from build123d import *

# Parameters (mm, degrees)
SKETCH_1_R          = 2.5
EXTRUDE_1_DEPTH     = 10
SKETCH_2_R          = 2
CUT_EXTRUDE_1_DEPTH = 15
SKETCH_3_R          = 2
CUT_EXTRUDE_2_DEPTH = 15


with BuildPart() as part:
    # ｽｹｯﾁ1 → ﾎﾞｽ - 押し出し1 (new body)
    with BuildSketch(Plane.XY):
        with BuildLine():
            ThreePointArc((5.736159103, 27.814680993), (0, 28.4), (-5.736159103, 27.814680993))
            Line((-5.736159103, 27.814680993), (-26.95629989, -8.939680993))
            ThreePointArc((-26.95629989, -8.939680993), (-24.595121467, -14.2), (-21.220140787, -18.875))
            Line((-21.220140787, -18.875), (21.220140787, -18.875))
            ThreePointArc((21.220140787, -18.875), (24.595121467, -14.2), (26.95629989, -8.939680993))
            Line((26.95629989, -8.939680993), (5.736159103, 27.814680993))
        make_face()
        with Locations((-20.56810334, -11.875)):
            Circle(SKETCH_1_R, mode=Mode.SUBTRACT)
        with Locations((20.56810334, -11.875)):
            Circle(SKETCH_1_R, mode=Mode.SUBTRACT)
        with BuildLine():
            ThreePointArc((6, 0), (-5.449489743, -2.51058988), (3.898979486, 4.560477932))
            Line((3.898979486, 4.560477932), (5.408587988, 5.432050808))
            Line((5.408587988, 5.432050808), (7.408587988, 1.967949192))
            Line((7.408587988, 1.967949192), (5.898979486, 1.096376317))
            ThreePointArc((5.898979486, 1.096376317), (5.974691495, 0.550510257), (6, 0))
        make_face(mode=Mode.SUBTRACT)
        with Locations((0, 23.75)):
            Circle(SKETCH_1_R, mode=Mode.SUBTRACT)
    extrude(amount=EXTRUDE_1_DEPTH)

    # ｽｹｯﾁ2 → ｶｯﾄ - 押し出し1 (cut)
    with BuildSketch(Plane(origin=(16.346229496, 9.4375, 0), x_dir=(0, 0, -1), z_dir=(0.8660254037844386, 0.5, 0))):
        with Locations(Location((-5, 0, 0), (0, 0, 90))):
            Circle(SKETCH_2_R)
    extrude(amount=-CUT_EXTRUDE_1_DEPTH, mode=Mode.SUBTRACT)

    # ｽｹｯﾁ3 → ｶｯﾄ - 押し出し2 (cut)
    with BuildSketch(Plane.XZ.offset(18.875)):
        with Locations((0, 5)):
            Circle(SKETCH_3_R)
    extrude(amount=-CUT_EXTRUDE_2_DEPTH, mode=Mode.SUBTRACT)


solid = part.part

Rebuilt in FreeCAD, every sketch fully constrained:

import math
import FreeCAD as App
import Part
import Sketcher

V = App.Vector
Q = App.Units.Quantity

doc = App.newDocument("Part")
body = doc.addObject("PartDesign::Body", "Body")

# Sketch on XY plane
sketch1 = doc.addObject("Sketcher::SketchObject", "Sketch")
body.addObject(sketch1)
sketch1.AttachmentSupport = (doc.XY_Plane, [""])
sketch1.MapMode = "FlatFace"
sketch1.addGeometry(Part.ArcOfCircle(Part.Circle(V(0, 0, 0), V(0, 0, 1), 28.4), math.radians(78), math.radians(102)), False)
sketch1.addGeometry(Part.LineSegment(V(-5.7, 27.8, 0), V(-27, -8.9, 0)), False)
sketch1.addGeometry(Part.ArcOfCircle(Part.Circle(V(0, 0, 0), V(0, 0, 1), 28.4), math.radians(-162), math.radians(-138)), False)
sketch1.addGeometry(Part.LineSegment(V(-21.2, -18.9, 0), V(21.2, -18.9, 0)), False)
sketch1.addGeometry(Part.ArcOfCircle(Part.Circle(V(0, 0, 0), V(0, 0, 1), 28.4), math.radians(-42), math.radians(-18)), False)
sketch1.addGeometry(Part.LineSegment(V(27, -8.9, 0), V(5.7, 27.8, 0)), False)
sketch1.addGeometry(Part.Circle(V(-20.6, -11.9, 0), V(0, 0, 1), 2.5), False)
sketch1.addGeometry(Part.Circle(V(20.6, -11.9, 0), V(0, 0, 1), 2.5), False)
sketch1.addGeometry(Part.ArcOfCircle(Part.Circle(V(0, 0, 0), V(0, 0, 1), 6), math.radians(0), math.radians(10.53)), False)
sketch1.addGeometry(Part.ArcOfCircle(Part.Circle(V(0, 0, 0), V(0, 0, 1), 6), math.radians(49), math.radians(360)), False)
sketch1.addGeometry(Part.LineSegment(V(3.9, 4.6, 0), V(5.4, 5.4, 0)), False)
sketch1.addGeometry(Part.LineSegment(V(5.4, 5.4, 0), V(7.4, 2, 0)), False)
sketch1.addGeometry(Part.LineSegment(V(7.4, 2, 0), V(5.9, 1.1, 0)), False)
sketch1.addGeometry(Part.Circle(V(0, 23.8, 0), V(0, 0, 1), 2.5), False)
sketch1.addConstraint(Sketcher.Constraint("Coincident", 0, 2, 1, 1))
sketch1.addConstraint(Sketcher.Constraint("Coincident", 1, 2, 2, 1))
sketch1.addConstraint(Sketcher.Constraint("Coincident", 2, 2, 3, 1))
sketch1.addConstraint(Sketcher.Constraint("Coincident", 3, 2, 4, 1))
sketch1.addConstraint(Sketcher.Constraint("Coincident", 4, 2, 5, 1))
sketch1.addConstraint(Sketcher.Constraint("Coincident", 5, 2, 0, 1))
sketch1.addConstraint(Sketcher.Constraint("Tangent", 8, 1, 9, 2))
sketch1.addConstraint(Sketcher.Constraint("Coincident", 9, 1, 10, 1))
sketch1.addConstraint(Sketcher.Constraint("Coincident", 10, 2, 11, 1))
sketch1.addConstraint(Sketcher.Constraint("Coincident", 11, 2, 12, 1))
sketch1.addConstraint(Sketcher.Constraint("Coincident", 12, 2, 8, 2))
sketch1.addConstraint(Sketcher.Constraint("Horizontal", 3))
sketch1.addConstraint(Sketcher.Constraint("Coincident", 0, 3, -1, 1))
sketch1.addConstraint(Sketcher.Constraint("Coincident", 2, 3, -1, 1))
sketch1.addConstraint(Sketcher.Constraint("Coincident", 4, 3, -1, 1))
sketch1.addConstraint(Sketcher.Constraint("Coincident", 8, 3, -1, 1))
sketch1.addConstraint(Sketcher.Constraint("Equal", 0, 2))
sketch1.addConstraint(Sketcher.Constraint("Equal", 2, 4))
sketch1.addConstraint(Sketcher.Constraint("Equal", 6, 7))
sketch1.addConstraint(Sketcher.Constraint("Equal", 8, 9))
sketch1.addConstraint(Sketcher.Constraint("Equal", 7, 13))
sketch1.addConstraint(Sketcher.Constraint("Symmetric", 6, 3, 7, 3, -2))
sketch1.addConstraint(Sketcher.Constraint("PointOnObject", 13, 3, -2))
sketch1.addConstraint(Sketcher.Constraint("PointOnObject", 8, 1, -1))
sketch1.addConstraint(Sketcher.Constraint("Perpendicular", 5, 10))
sketch1.addConstraint(Sketcher.Constraint("Perpendicular", 10, 11))
sketch1.addConstraint(Sketcher.Constraint("Perpendicular", 11, 12))
sketch1.addConstraint(Sketcher.Constraint("Horizontal", 1, 2, 4, 2))
sketch1.addConstraint(Sketcher.Constraint("Horizontal", 0, 2, 5, 2))
sketch1.addConstraint(Sketcher.Constraint("Equal", 10, 12))
sketch1.addConstraint(Sketcher.Constraint("Diameter", 6, Q("5 mm")))
sketch1.addConstraint(Sketcher.Constraint("Radius", 8, Q("6 mm")))
sketch1.addConstraint(Sketcher.Constraint("Radius", 0, Q("28.4 mm")))
sketch1.addConstraint(Sketcher.Constraint("Angle", 1, Q("-120 deg")))
sketch1.addConstraint(Sketcher.Constraint("Distance", 11, Q("4 mm")))
sketch1.addConstraint(Sketcher.Constraint("DistanceY", 2, 2, 6, 3, Q("7 mm")))
sketch1.addConstraint(Sketcher.Constraint("DistanceY", -1, 1, 13, 3, Q("23.75 mm")))
sketch1.addConstraint(Sketcher.Constraint("DistanceY", 6, 3, -1, 1, Q("11.875 mm")))
sketch1.addConstraint(Sketcher.Constraint("DistanceX", 1, 2, -1, 1, Q("26.9563 mm")))
sketch1.addConstraint(Sketcher.Constraint("DistanceY", -1, 1, 10, 2, Q("5.432051 mm")))
sketch1.addConstraint(Sketcher.Constraint("DistanceX", 6, 3, -1, 1, Q("20.568103 mm")))
pad1 = doc.addObject("PartDesign::Pad", "Pad")
body.addObject(pad1)
pad1.Profile = sketch1
pad1.Length = 10

# Sketch on an angled plane
sketch2 = doc.addObject("Sketcher::SketchObject", "Sketch001")
body.addObject(sketch2)
sketch2.Placement = App.Placement(V(16.346229, 9.4375, 0), App.Rotation(V(0, 0, -1), V(-0.5, 0.866025404, 0), V(0.866025404, 0.5, 0), "ZXY"))
sketch2.addGeometry(Part.Circle(V(-5, 0, 0), V(0, 0, 1), 2), False)
sketch2.addConstraint(Sketcher.Constraint("PointOnObject", 0, 3, -1))
sketch2.addConstraint(Sketcher.Constraint("Diameter", 0, Q("4 mm")))
sketch2.addConstraint(Sketcher.Constraint("DistanceX", 0, 3, -1, 1, Q("5 mm")))
pocket1 = doc.addObject("PartDesign::Pocket", "Pocket")
body.addObject(pocket1)
pocket1.Profile = sketch2
pocket1.Length = 15

# Sketch on XZ plane
sketch3 = doc.addObject("Sketcher::SketchObject", "Sketch002")
body.addObject(sketch3)
sketch3.AttachmentSupport = (doc.XZ_Plane, [""])
sketch3.MapMode = "FlatFace"
sketch3.AttachmentOffset = App.Placement(V(0, 0, 18.875), App.Rotation())
sketch3.addGeometry(Part.Circle(V(0, 5, 0), V(0, 0, 1), 2), False)
sketch3.addConstraint(Sketcher.Constraint("PointOnObject", 0, 3, -2))
sketch3.addConstraint(Sketcher.Constraint("Diameter", 0, Q("4 mm")))
sketch3.addConstraint(Sketcher.Constraint("DistanceY", -1, 1, 0, 3, Q("5 mm")))
pocket2 = doc.addObject("PartDesign::Pocket", "Pocket001")
body.addObject(pocket2)
pocket2.Profile = sketch3
pocket2.Length = 15

doc.recompute()
